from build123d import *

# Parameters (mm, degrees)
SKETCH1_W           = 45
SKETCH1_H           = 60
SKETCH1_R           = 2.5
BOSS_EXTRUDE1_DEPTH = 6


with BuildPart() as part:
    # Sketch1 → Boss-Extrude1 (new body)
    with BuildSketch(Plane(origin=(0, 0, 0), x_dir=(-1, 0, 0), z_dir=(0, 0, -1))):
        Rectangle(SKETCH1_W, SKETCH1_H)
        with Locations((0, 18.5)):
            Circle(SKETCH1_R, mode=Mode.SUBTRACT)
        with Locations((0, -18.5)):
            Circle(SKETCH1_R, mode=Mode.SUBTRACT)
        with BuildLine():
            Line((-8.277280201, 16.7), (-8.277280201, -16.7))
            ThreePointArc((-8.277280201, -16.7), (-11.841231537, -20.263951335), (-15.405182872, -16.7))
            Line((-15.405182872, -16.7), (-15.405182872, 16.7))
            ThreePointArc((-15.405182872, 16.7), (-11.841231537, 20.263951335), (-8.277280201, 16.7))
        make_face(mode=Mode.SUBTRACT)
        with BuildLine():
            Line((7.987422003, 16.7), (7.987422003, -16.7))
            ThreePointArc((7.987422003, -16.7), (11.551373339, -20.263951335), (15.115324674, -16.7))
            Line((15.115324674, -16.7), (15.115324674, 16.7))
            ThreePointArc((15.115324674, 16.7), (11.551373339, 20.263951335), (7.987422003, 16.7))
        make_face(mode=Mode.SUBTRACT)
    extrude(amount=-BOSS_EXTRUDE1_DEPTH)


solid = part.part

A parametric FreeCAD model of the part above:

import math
import FreeCAD as App
import Part
import Sketcher
Q = App.Units.Quantity

doc = App.newDocument("Part")
body = doc.addObject("PartDesign::Body", "Body")

sketch1 = body.newObject("Sketcher::SketchObject", "Sketch")
sketch1.AttachmentSupport = (doc.getObject("XY_Plane"), [""])
sketch1.MapMode = "FlatFace"
sketch1.addGeometry([
    Part.LineSegment(App.Vector(22.5, 30, 0), App.Vector(22.5, -30, 0)),
    Part.LineSegment(App.Vector(22.5, -30, 0), App.Vector(-22.5, -30, 0)),
    Part.LineSegment(App.Vector(-22.5, -30, 0), App.Vector(-22.5, 30, 0)),
    Part.LineSegment(App.Vector(-22.5, 30, 0), App.Vector(22.5, 30, 0)),
    Part.Circle(App.Vector(0, -18.5, 0), App.Vector(0, 0, 1), 2.5),
    Part.ArcOfCircle(Part.Circle(App.Vector(11.841232, 16.7, 0), App.Vector(0, 0, 1), 3.563951), math.radians(0), math.radians(180)),
    Part.LineSegment(App.Vector(8.27728, 16.7, 0), App.Vector(8.27728, -16.7, 0)),
    Part.ArcOfCircle(Part.Circle(App.Vector(11.841232, -16.7, 0), App.Vector(0, 0, 1), 3.563951), math.radians(180), math.radians(360)),
    Part.LineSegment(App.Vector(15.405183, -16.7, 0), App.Vector(15.405183, 16.7, 0)),
    Part.LineSegment(App.Vector(-7.987422, -16.7, 0), App.Vector(-7.987422, 16.7, 0)),
    Part.ArcOfCircle(Part.Circle(App.Vector(-11.551373, 16.7, 0), App.Vector(0, 0, 1), 3.563951), math.radians(0), math.radians(180)),
    Part.LineSegment(App.Vector(-15.115325, 16.7, 0), App.Vector(-15.115325, -16.7, 0)),
    Part.ArcOfCircle(Part.Circle(App.Vector(-11.551373, -16.7, 0), App.Vector(0, 0, 1), 3.563951), math.radians(180), math.radians(360)),
    Part.Circle(App.Vector(0, 18.5, 0), App.Vector(0, 0, 1), 2.5),
], False)
sketch1.addConstraint([
    Sketcher.Constraint("Coincident", 0, 2, 1, 1),
    Sketcher.Constraint("Coincident", 1, 2, 2, 1),
    Sketcher.Constraint("Coincident", 2, 2, 3, 1),
    Sketcher.Constraint("Coincident", 3, 2, 0, 1),
    Sketcher.Constraint("Tangent", 5, 2, 6, 1),
    Sketcher.Constraint("Tangent", 6, 2, 7, 1),
    Sketcher.Constraint("Tangent", 7, 2, 8, 1),
    Sketcher.Constraint("Tangent", 8, 2, 5, 1),
    Sketcher.Constraint("Tangent", 9, 2, 10, 1),
    Sketcher.Constraint("Tangent", 10, 2, 11, 1),
    Sketcher.Constraint("Tangent", 11, 2, 12, 1),
    Sketcher.Constraint("Tangent", 12, 2, 9, 1),
    Sketcher.Constraint("Vertical", 0),
    Sketcher.Constraint("Horizontal", 1),
    Sketcher.Constraint("Vertical", 2),
    Sketcher.Constraint("Horizontal", 3),
    Sketcher.Constraint("Vertical", 6),
    Sketcher.Constraint("Vertical", 8),
    Sketcher.Constraint("Vertical", 9),
    Sketcher.Constraint("Vertical", 11),
    Sketcher.Constraint("Equal", 7, 10),
    Sketcher.Constraint("Equal", 4, 13),
    Sketcher.Constraint("Symmetric", 4, 3, 13, 3, -1, 1),
    Sketcher.Constraint("Symmetric", 0, 2, 2, 2, -1, 1),
    Sketcher.Constraint("PointOnObject", 4, 3, -2),
    Sketcher.Constraint("Horizontal", 5, 3, 10, 3),
    Sketcher.Constraint("Horizontal", 7, 3, 12, 3),
    Sketcher.Constraint("Diameter", 4, Q("5 mm")),
    Sketcher.Constraint("DistanceX", 1, 2, 1, 1, Q("45 mm")),
    Sketcher.Constraint("DistanceY", 0, 2, 0, 1, Q("60 mm")),
    Sketcher.Constraint("DistanceY", 6, 2, 6, 1, Q("33.4 mm")),
    Sketcher.Constraint("DistanceY", 4, 3, 13, 3, Q("37 mm")),
    Sketcher.Constraint("DistanceY", -1, 1, 5, 3, Q("16.7 mm")),
    Sketcher.Constraint("Radius", 5, Q("3.563951 mm")),
    Sketcher.Constraint("DistanceX", -1, 1, 5, 3, Q("11.841232 mm")),
    Sketcher.Constraint("DistanceX", 10, 3, -1, 1, Q("11.551373 mm")),
])
pad1 = body.newObject("PartDesign::Pad", "Pad")
pad1.Profile = sketch1
pad1.Length = 6

doc.recompute()
